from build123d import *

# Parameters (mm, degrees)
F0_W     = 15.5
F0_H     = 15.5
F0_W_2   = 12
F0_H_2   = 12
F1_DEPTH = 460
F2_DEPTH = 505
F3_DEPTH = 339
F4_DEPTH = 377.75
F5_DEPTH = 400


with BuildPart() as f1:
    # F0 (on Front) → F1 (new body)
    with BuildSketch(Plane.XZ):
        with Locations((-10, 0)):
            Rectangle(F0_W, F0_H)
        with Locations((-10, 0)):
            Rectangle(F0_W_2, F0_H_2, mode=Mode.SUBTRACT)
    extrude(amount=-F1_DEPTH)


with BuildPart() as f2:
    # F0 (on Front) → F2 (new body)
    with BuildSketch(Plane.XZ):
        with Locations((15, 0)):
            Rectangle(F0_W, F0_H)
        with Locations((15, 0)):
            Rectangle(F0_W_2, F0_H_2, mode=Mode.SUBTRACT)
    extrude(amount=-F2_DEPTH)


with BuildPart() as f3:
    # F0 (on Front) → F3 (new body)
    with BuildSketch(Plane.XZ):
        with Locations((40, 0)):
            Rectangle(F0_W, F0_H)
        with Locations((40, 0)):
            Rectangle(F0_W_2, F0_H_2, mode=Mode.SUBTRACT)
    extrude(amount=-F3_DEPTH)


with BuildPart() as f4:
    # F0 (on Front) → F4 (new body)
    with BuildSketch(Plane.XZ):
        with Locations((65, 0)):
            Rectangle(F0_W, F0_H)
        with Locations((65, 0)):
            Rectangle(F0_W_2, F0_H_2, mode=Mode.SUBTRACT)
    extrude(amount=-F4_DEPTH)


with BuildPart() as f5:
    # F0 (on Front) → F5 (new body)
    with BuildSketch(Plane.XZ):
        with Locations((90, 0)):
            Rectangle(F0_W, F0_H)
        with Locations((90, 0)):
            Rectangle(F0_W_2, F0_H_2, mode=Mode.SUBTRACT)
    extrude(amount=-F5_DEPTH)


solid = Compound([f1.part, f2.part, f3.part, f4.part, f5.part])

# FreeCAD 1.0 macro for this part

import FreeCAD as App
import Part
import Sketcher

V = App.Vector

doc = App.newDocument("Part")
params = doc.addObject("Spreadsheet::Sheet", "Params")
for row, (alias, value) in enumerate([
    ("sketch1_width", "12 mm"),
    ("sketch1_width2", "15.5 mm"),
    ("pad1_length", "460 mm"),
    ("sketch2_width", "12 mm"),
    ("sketch2_width2", "15.5 mm"),
    ("pad2_length", "505 mm"),
    ("sketch3_width", "12 mm"),
    ("sketch3_width2", "15.5 mm"),
    ("pad3_length", "339 mm"),
    ("sketch4_width", "12 mm"),
    ("sketch4_width2", "15.5 mm"),
    ("pad4_length", "377.75 mm"),
    ("sketch5_width", "12 mm"),
    ("sketch5_width2", "15.5 mm"),
    ("pad5_length", "400 mm"),
], start=1):
    params.set(f"A{row}", alias)
    params.set(f"B{row}", "=" + value)
    params.setAlias(f"B{row}", alias)

body = doc.addObject("PartDesign::Body", "Body")

# Sketch on XZ plane
sketch1 = body.newObject("Sketcher::SketchObject", "Sketch")
sketch1.AttachmentSupport = (doc.getObject("XZ_Plane"), [""])
sketch1.MapMode = "FlatFace"
sketch1.addGeometry(Part.LineSegment(V(-17.75, 7.75, 0), V(-17.75, -7.75, 0)), False)
sketch1.addGeometry(Part.LineSegment(V(-17.75, -7.75, 0), V(-2.25, -7.75, 0)), False)
sketch1.addGeometry(Part.LineSegment(V(-2.25, -7.75, 0), V(-2.25, 7.75, 0)), False)
sketch1.addGeometry(Part.LineSegment(V(-2.25, 7.75, 0), V(-17.75, 7.75, 0)), False)
sketch1.addGeometry(Part.LineSegment(V(-4, -6, 0), V(-16, -6, 0)), False)
sketch1.addGeometry(Part.LineSegment(V(-16, -6, 0), V(-16, 6, 0)), False)
sketch1.addGeometry(Part.LineSegment(V(-16, 6, 0), V(-4, 6, 0)), False)
sketch1.addGeometry(Part.LineSegment(V(-4, 6, 0), V(-4, -6, 0)), False)
sketch1.addConstraint(Sketcher.Constraint("Coincident", 0, 2, 1, 1))
sketch1.addConstraint(Sketcher.Constraint("Coincident", 1, 2, 2, 1))
sketch1.addConstraint(Sketcher.Constraint("Coincident", 2, 2, 3, 1))
sketch1.addConstraint(Sketcher.Constraint("Coincident", 3, 2, 0, 1))
sketch1.addConstraint(Sketcher.Constraint("Coincident", 4, 2, 5, 1))
sketch1.addConstraint(Sketcher.Constraint("Coincident", 5, 2, 6, 1))
sketch1.addConstraint(Sketcher.Constraint("Coincident", 6, 2, 7, 1))
sketch1.addConstraint(Sketcher.Constraint("Coincident", 7, 2, 4, 1))
sketch1.addConstraint(Sketcher.Constraint("Vertical", 0))
sketch1.addConstraint(Sketcher.Constraint("Horizontal", 1))
sketch1.addConstraint(Sketcher.Constraint("Vertical", 2))
sketch1.addConstraint(Sketcher.Constraint("Horizontal", 3))
sketch1.addConstraint(Sketcher.Constraint("Horizontal", 4))
sketch1.addConstraint(Sketcher.Constraint("Vertical", 5))
sketch1.addConstraint(Sketcher.Constraint("Horizontal", 6))
sketch1.addConstraint(Sketcher.Constraint("Vertical", 7))
sketch1.addConstraint(Sketcher.Constraint("Equal", 3, 0))
sketch1.addConstraint(Sketcher.Constraint("Equal", 6, 5))
sketch1.addConstraint(Sketcher.Constraint("DistanceX", 4, 2, 4, 1, 12.0))
sketch1.addConstraint(Sketcher.Constraint("DistanceX", 1, 1, 1, 2, 15.5))
sketch1.addConstraint(Sketcher.Constraint("DistanceX", 4, 2, -1, 1, 16.0))
sketch1.addConstraint(Sketcher.Constraint("DistanceY", 4, 2, -1, 1, 6.0))
sketch1.addConstraint(Sketcher.Constraint("DistanceX", 0, 2, -1, 1, 17.75))
sketch1.addConstraint(Sketcher.Constraint("DistanceY", 0, 2, -1, 1, 7.75))
sketch1.setExpression("Constraints[18]", "Params.sketch1_width")
sketch1.setExpression("Constraints[19]", "Params.sketch1_width2")
pad1 = body.newObject("PartDesign::Pad", "Pad")
pad1.Profile = sketch1
pad1.setExpression("Length", "Params.pad1_length")
pad1.Reversed = True
body2 = doc.addObject("PartDesign::Body", "Body001")

# Sketch on XZ plane
sketch2 = body2.newObject("Sketcher::SketchObject", "Sketch001")
sketch2.AttachmentSupport = (doc.getObject("XZ_Plane001"), [""])
sketch2.MapMode = "FlatFace"
sketch2.addGeometry(Part.LineSegment(V(7.25, 7.75, 0), V(7.25, -7.75, 0)), False)
sketch2.addGeometry(Part.LineSegment(V(7.25, -7.75, 0), V(22.75, -7.75, 0)), False)
sketch2.addGeometry(Part.LineSegment(V(22.75, -7.75, 0), V(22.75, 7.75, 0)), False)
sketch2.addGeometry(Part.LineSegment(V(22.75, 7.75, 0), V(7.25, 7.75, 0)), False)
sketch2.addGeometry(Part.LineSegment(V(21, -6, 0), V(9, -6, 0)), False)
sketch2.addGeometry(Part.LineSegment(V(9, -6, 0), V(9, 6, 0)), False)
sketch2.addGeometry(Part.LineSegment(V(9, 6, 0), V(21, 6, 0)), False)
sketch2.addGeometry(Part.LineSegment(V(21, 6, 0), V(21, -6, 0)), False)
sketch2.addConstraint(Sketcher.Constraint("Coincident", 0, 2, 1, 1))
sketch2.addConstraint(Sketcher.Constraint("Coincident", 1, 2, 2, 1))
sketch2.addConstraint(Sketcher.Constraint("Coincident", 2, 2, 3, 1))
sketch2.addConstraint(Sketcher.Constraint("Coincident", 3, 2, 0, 1))
sketch2.addConstraint(Sketcher.Constraint("Coincident", 4, 2, 5, 1))
sketch2.addConstraint(Sketcher.Constraint("Coincident", 5, 2, 6, 1))
sketch2.addConstraint(Sketcher.Constraint("Coincident", 6, 2, 7, 1))
sketch2.addConstraint(Sketcher.Constraint("Coincident", 7, 2, 4, 1))
sketch2.addConstraint(Sketcher.Constraint("Vertical", 0))
sketch2.addConstraint(Sketcher.Constraint("Horizontal", 1))
sketch2.addConstraint(Sketcher.Constraint("Vertical", 2))
sketch2.addConstraint(Sketcher.Constraint("Horizontal", 3))
sketch2.addConstraint(Sketcher.Constraint("Horizontal", 4))
sketch2.addConstraint(Sketcher.Constraint("Vertical", 5))
sketch2.addConstraint(Sketcher.Constraint("Horizontal", 6))
sketch2.addConstraint(Sketcher.Constraint("Vertical", 7))
sketch2.addConstraint(Sketcher.Constraint("Equal", 3, 0))
sketch2.addConstraint(Sketcher.Constraint("Equal", 6, 5))
sketch2.addConstraint(Sketcher.Constraint("DistanceX", 4, 2, 4, 1, 12.0))
sketch2.addConstraint(Sketcher.Constraint("DistanceX", 1, 1, 1, 2, 15.5))
sketch2.addConstraint(Sketcher.Constraint("DistanceX", -1, 1, 4, 2, 9.0))
sketch2.addConstraint(Sketcher.Constraint("DistanceY", 4, 2, -1, 1, 6.0))
sketch2.addConstraint(Sketcher.Constraint("DistanceX", -1, 1, 0, 2, 7.25))
sketch2.addConstraint(Sketcher.Constraint("DistanceY", 0, 2, -1, 1, 7.75))
sketch2.setExpression("Constraints[18]", "Params.sketch2_width")
sketch2.setExpression("Constraints[19]", "Params.sketch2_width2")
pad2 = body2.newObject("PartDesign::Pad", "Pad001")
pad2.Profile = sketch2
pad2.setExpression("Length", "Params.pad2_length")
pad2.Reversed = True
body3 = doc.addObject("PartDesign::Body", "Body002")

# Sketch on XZ plane
sketch3 = body3.newObject("Sketcher::SketchObject", "Sketch002")
sketch3.AttachmentSupport = (doc.getObject("XZ_Plane002"), [""])
sketch3.MapMode = "FlatFace"
sketch3.addGeometry(Part.LineSegment(V(32.25, 7.75, 0), V(32.25, -7.75, 0)), False)
sketch3.addGeometry(Part.LineSegment(V(32.25, -7.75, 0), V(47.75, -7.75, 0)), False)
sketch3.addGeometry(Part.LineSegment(V(47.75, -7.75, 0), V(47.75, 7.75, 0)), False)
sketch3.addGeometry(Part.LineSegment(V(47.75, 7.75, 0), V(32.25, 7.75, 0)), False)
sketch3.addGeometry(Part.LineSegment(V(46, -6, 0), V(34, -6, 0)), False)
sketch3.addGeometry(Part.LineSegment(V(34, -6, 0), V(34, 6, 0)), False)
sketch3.addGeometry(Part.LineSegment(V(34, 6, 0), V(46, 6, 0)), False)
sketch3.addGeometry(Part.LineSegment(V(46, 6, 0), V(46, -6, 0)), False)
sketch3.addConstraint(Sketcher.Constraint("Coincident", 0, 2, 1, 1))
sketch3.addConstraint(Sketcher.Constraint("Coincident", 1, 2, 2, 1))
sketch3.addConstraint(Sketcher.Constraint("Coincident", 2, 2, 3, 1))
sketch3.addConstraint(Sketcher.Constraint("Coincident", 3, 2, 0, 1))
sketch3.addConstraint(Sketcher.Constraint("Coincident", 4, 2, 5, 1))
sketch3.addConstraint(Sketcher.Constraint("Coincident", 5, 2, 6, 1))
sketch3.addConstraint(Sketcher.Constraint("Coincident", 6, 2, 7, 1))
sketch3.addConstraint(Sketcher.Constraint("Coincident", 7, 2, 4, 1))
sketch3.addConstraint(Sketcher.Constraint("Vertical", 0))
sketch3.addConstraint(Sketcher.Constraint("Horizontal", 1))
sketch3.addConstraint(Sketcher.Constraint("Vertical", 2))
sketch3.addConstraint(Sketcher.Constraint("Horizontal", 3))
sketch3.addConstraint(Sketcher.Constraint("Horizontal", 4))
sketch3.addConstraint(Sketcher.Constraint("Vertical", 5))
sketch3.addConstraint(Sketcher.Constraint("Horizontal", 6))
sketch3.addConstraint(Sketcher.Constraint("Vertical", 7))
sketch3.addConstraint(Sketcher.Constraint("Equal", 3, 0))
sketch3.addConstraint(Sketcher.Constraint("Equal", 6, 5))
sketch3.addConstraint(Sketcher.Constraint("DistanceX", 4, 2, 4, 1, 12.0))
sketch3.addConstraint(Sketcher.Constraint("DistanceX", 1, 1, 1, 2, 15.5))
sketch3.addConstraint(Sketcher.Constraint("DistanceX", -1, 1, 4, 2, 34.0))
sketch3.addConstraint(Sketcher.Constraint("DistanceY", 4, 2, -1, 1, 6.0))
sketch3.addConstraint(Sketcher.Constraint("DistanceX", -1, 1, 0, 2, 32.25))
sketch3.addConstraint(Sketcher.Constraint("DistanceY", 0, 2, -1, 1, 7.75))
sketch3.setExpression("Constraints[18]", "Params.sketch3_width")
sketch3.setExpression("Constraints[19]", "Params.sketch3_width2")
pad3 = body3.newObject("PartDesign::Pad", "Pad002")
pad3.Profile = sketch3
pad3.setExpression("Length", "Params.pad3_length")
pad3.Reversed = True
body4 = doc.addObject("PartDesign::Body", "Body003")

# Sketch on XZ plane
sketch4 = body4.newObject("Sketcher::SketchObject", "Sketch003")
sketch4.AttachmentSupport = (doc.getObject("XZ_Plane003"), [""])
sketch4.MapMode = "FlatFace"
sketch4.addGeometry(Part.LineSegment(V(57.25, 7.75, 0), V(57.25, -7.75, 0)), False)
sketch4.addGeometry(Part.LineSegment(V(57.25, -7.75, 0), V(72.75, -7.75, 0)), False)
sketch4.addGeometry(Part.LineSegment(V(72.75, -7.75, 0), V(72.75, 7.75, 0)), False)
sketch4.addGeometry(Part.LineSegment(V(72.75, 7.75, 0), V(57.25, 7.75, 0)), False)
sketch4.addGeometry(Part.LineSegment(V(71, -6, 0), V(59, -6, 0)), False)
sketch4.addGeometry(Part.LineSegment(V(59, -6, 0), V(59, 6, 0)), False)
sketch4.addGeometry(Part.LineSegment(V(59, 6, 0), V(71, 6, 0)), False)
sketch4.addGeometry(Part.LineSegment(V(71, 6, 0), V(71, -6, 0)), False)
sketch4.addConstraint(Sketcher.Constraint("Coincident", 0, 2, 1, 1))
sketch4.addConstraint(Sketcher.Constraint("Coincident", 1, 2, 2, 1))
sketch4.addConstraint(Sketcher.Constraint("Coincident", 2, 2, 3, 1))
sketch4.addConstraint(Sketcher.Constraint("Coincident", 3, 2, 0, 1))
sketch4.addConstraint(Sketcher.Constraint("Coincident", 4, 2, 5, 1))
sketch4.addConstraint(Sketcher.Constraint("Coincident", 5, 2, 6, 1))
sketch4.addConstraint(Sketcher.Constraint("Coincident", 6, 2, 7, 1))
sketch4.addConstraint(Sketcher.Constraint("Coincident", 7, 2, 4, 1))
sketch4.addConstraint(Sketcher.Constraint("Vertical", 0))
sketch4.addConstraint(Sketcher.Constraint("Horizontal", 1))
sketch4.addConstraint(Sketcher.Constraint("Vertical", 2))
sketch4.addConstraint(Sketcher.Constraint("Horizontal", 3))
sketch4.addConstraint(Sketcher.Constraint("Horizontal", 4))
sketch4.addConstraint(Sketcher.Constraint("Vertical", 5))
sketch4.addConstraint(Sketcher.Constraint("Horizontal", 6))
sketch4.addConstraint(Sketcher.Constraint("Vertical", 7))
sketch4.addConstraint(Sketcher.Constraint("Equal", 3, 0))
sketch4.addConstraint(Sketcher.Constraint("Equal", 6, 5))
sketch4.addConstraint(Sketcher.Constraint("DistanceX", 4, 2, 4, 1, 12.0))
sketch4.addConstraint(Sketcher.Constraint("DistanceX", 1, 1, 1, 2, 15.5))
sketch4.addConstraint(Sketcher.Constraint("DistanceX", -1, 1, 4, 2, 59.0))
sketch4.addConstraint(Sketcher.Constraint("DistanceY", 4, 2, -1, 1, 6.0))
sketch4.addConstraint(Sketcher.Constraint("DistanceX", -1, 1, 0, 2, 57.25))
sketch4.addConstraint(Sketcher.Constraint("DistanceY", 0, 2, -1, 1, 7.75))
sketch4.setExpression("Constraints[18]", "Params.sketch4_width")
sketch4.setExpression("Constraints[19]", "Params.sketch4_width2")
pad4 = body4.newObject("PartDesign::Pad", "Pad003")
pad4.Profile = sketch4
pad4.setExpression("Length", "Params.pad4_length")
pad4.Reversed = True
body5 = doc.addObject("PartDesign::Body", "Body004")

# Sketch on XZ plane
sketch5 = body5.newObject("Sketcher::SketchObject", "Sketch004")
sketch5.AttachmentSupport = (doc.getObject("XZ_Plane004"), [""])
sketch5.MapMode = "FlatFace"
sketch5.addGeometry(Part.LineSegment(V(82.25, 7.75, 0), V(82.25, -7.75, 0)), False)
sketch5.addGeometry(Part.LineSegment(V(82.25, -7.75, 0), V(97.75, -7.75, 0)), False)
sketch5.addGeometry(Part.LineSegment(V(97.75, -7.75, 0), V(97.75, 7.75, 0)), False)
sketch5.addGeometry(Part.LineSegment(V(97.75, 7.75, 0), V(82.25, 7.75, 0)), False)
sketch5.addGeometry(Part.LineSegment(V(96, -6, 0), V(84, -6, 0)), False)
sketch5.addGeometry(Part.LineSegment(V(84, -6, 0), V(84, 6, 0)), False)
sketch5.addGeometry(Part.LineSegment(V(84, 6, 0), V(96, 6, 0)), False)
sketch5.addGeometry(Part.LineSegment(V(96, 6, 0), V(96, -6, 0)), False)
sketch5.addConstraint(Sketcher.Constraint("Coincident", 0, 2, 1, 1))
sketch5.addConstraint(Sketcher.Constraint("Coincident", 1, 2, 2, 1))
sketch5.addConstraint(Sketcher.Constraint("Coincident", 2, 2, 3, 1))
sketch5.addConstraint(Sketcher.Constraint("Coincident", 3, 2, 0, 1))
sketch5.addConstraint(Sketcher.Constraint("Coincident", 4, 2, 5, 1))
sketch5.addConstraint(Sketcher.Constraint("Coincident", 5, 2, 6, 1))
sketch5.addConstraint(Sketcher.Constraint("Coincident", 6, 2, 7, 1))
sketch5.addConstraint(Sketcher.Constraint("Coincident", 7, 2, 4, 1))
sketch5.addConstraint(Sketcher.Constraint("Vertical", 0))
sketch5.addConstraint(Sketcher.Constraint("Horizontal", 1))
sketch5.addConstraint(Sketcher.Constraint("Vertical", 2))
sketch5.addConstraint(Sketcher.Constraint("Horizontal", 3))
sketch5.addConstraint(Sketcher.Constraint("Horizontal", 4))
sketch5.addConstraint(Sketcher.Constraint("Vertical", 5))
sketch5.addConstraint(Sketcher.Constraint("Horizontal", 6))
sketch5.addConstraint(Sketcher.Constraint("Vertical", 7))
sketch5.addConstraint(Sketcher.Constraint("Equal", 3, 0))
sketch5.addConstraint(Sketcher.Constraint("Equal", 6, 5))
sketch5.addConstraint(Sketcher.Constraint("DistanceX", 4, 2, 4, 1, 12.0))
sketch5.addConstraint(Sketcher.Constraint("DistanceX", 1, 1, 1, 2, 15.5))
sketch5.addConstraint(Sketcher.Constraint("DistanceX", -1, 1, 4, 2, 84.0))
sketch5.addConstraint(Sketcher.Constraint("DistanceY", 4, 2, -1, 1, 6.0))
sketch5.addConstraint(Sketcher.Constraint("DistanceX", -1, 1, 0, 2, 82.25))
sketch5.addConstraint(Sketcher.Constraint("DistanceY", 0, 2, -1, 1, 7.75))
sketch5.setExpression("Constraints[18]", "Params.sketch5_width")
sketch5.setExpression("Constraints[19]", "Params.sketch5_width2")
pad5 = body5.newObject("PartDesign::Pad", "Pad004")
pad5.Profile = sketch5
pad5.setExpression("Length", "Params.pad5_length")
pad5.Reversed = True

doc.recompute()
